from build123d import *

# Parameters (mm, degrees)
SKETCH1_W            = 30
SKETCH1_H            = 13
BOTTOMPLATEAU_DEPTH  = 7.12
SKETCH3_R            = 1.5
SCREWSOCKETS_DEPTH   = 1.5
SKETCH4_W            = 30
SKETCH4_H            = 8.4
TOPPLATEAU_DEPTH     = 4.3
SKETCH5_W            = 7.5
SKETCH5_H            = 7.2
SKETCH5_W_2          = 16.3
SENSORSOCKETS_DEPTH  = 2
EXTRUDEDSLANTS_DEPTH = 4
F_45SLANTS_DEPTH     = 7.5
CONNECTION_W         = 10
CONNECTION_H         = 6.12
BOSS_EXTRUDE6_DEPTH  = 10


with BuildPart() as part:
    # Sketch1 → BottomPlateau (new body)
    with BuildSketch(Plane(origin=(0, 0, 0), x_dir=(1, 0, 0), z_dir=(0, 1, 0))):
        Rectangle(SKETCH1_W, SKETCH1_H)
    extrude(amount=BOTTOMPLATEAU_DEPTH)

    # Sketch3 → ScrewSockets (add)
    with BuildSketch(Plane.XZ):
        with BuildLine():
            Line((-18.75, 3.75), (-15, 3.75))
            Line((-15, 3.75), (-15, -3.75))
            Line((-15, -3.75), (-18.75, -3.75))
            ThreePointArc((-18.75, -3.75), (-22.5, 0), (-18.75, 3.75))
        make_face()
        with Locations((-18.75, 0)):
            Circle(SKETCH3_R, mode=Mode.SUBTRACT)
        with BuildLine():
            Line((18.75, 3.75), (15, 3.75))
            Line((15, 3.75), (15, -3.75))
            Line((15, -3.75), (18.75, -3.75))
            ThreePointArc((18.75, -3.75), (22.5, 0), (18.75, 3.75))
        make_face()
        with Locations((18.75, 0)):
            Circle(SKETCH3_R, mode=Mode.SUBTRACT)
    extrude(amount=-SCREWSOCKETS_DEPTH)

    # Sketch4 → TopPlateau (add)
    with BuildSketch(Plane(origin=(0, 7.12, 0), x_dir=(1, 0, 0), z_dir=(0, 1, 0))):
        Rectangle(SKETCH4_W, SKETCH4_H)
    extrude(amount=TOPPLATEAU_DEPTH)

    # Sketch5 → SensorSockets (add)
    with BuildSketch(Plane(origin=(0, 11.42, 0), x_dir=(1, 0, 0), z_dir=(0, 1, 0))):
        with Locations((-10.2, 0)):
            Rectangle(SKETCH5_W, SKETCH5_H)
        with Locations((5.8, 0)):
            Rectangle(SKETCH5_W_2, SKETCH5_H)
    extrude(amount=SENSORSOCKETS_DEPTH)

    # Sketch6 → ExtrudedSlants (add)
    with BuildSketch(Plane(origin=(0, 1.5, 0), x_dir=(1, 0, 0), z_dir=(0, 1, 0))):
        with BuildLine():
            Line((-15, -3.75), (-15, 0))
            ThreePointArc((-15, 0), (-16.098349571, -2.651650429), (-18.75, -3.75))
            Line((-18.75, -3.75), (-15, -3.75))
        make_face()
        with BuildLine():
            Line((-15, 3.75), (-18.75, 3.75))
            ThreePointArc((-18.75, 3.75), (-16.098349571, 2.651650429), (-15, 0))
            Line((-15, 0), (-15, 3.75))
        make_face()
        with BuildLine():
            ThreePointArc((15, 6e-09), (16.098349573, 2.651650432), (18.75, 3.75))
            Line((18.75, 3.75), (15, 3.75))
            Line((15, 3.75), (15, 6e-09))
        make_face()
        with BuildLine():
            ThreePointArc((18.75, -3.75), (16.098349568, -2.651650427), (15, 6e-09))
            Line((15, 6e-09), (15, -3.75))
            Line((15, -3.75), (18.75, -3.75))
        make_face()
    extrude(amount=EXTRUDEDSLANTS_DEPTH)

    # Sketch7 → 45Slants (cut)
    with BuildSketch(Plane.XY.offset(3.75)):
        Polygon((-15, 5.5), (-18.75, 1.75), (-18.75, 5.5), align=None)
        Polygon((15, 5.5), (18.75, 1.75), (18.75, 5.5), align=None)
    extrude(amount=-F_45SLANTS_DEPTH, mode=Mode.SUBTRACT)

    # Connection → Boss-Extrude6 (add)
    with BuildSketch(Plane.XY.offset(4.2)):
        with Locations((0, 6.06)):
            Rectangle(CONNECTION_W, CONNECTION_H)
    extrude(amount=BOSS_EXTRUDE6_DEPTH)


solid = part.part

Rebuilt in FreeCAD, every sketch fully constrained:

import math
import FreeCAD as App
import Part
import Sketcher
from FreeCAD import Vector
Q = App.Units.Quantity


def add_polygon(sketch, points):
    """Adds a closed chain of lines whose ends are joined by coincident constraints."""
    first, n = sketch.GeometryCount, len(points)
    for a, b in zip(points, points[1:] + points[:1]):
        sketch.addGeometry(Part.LineSegment(App.Vector(*a, 0), App.Vector(*b, 0)), False)
    for i in range(n):
        sketch.addConstraint(Sketcher.Constraint("Coincident", first + i, 2, first + (i + 1) % n, 1))

doc = App.newDocument("Part")
params = doc.addObject("Spreadsheet::Sheet", "Params")
for row, (alias, value) in enumerate([
    ("sketch1_width", "30 mm"),
    ("sketch1_height", "13 mm"),
    ("pad1_length", "7.12 mm"),
    ("sketch2_diameter", "3 mm"),
    ("sketch2_radius", "3.75 mm"),
    ("sketch2_width", "3.75 mm"),
    ("pad2_length", "1.5 mm"),
    ("sketch3_width", "30 mm"),
    ("sketch3_height", "8.4 mm"),
    ("pad3_length", "4.3 mm"),
    ("sketch4_width", "7.5 mm"),
    ("sketch4_width2", "16.3 mm"),
    ("sketch4_height", "7.2 mm"),
    ("pad4_length", "2 mm"),
    ("sketch5_radius", "3.75 mm"),
    ("pad5_length", "4 mm"),
    ("sketch6_width", "3.75 mm"),
    ("pocket1_length", "7.5 mm"),
    ("sketch7_width", "10 mm"),
    ("sketch7_height", "6.12 mm"),
    ("pad6_length", "10 mm"),
], start=1):
    params.set(f"A{row}", alias)
    params.set(f"B{row}", "=" + value)
    params.setAlias(f"B{row}", alias)

body = doc.addObject("PartDesign::Body", "Body")

sketch1 = body.newObject("Sketcher::SketchObject", "Sketch")
sketch1.AttachmentSupport = (doc.getObject("XZ_Plane"), [""])
sketch1.MapMode = "FlatFace"
add_polygon(sketch1, [(-15, -6), (-15, 6), (15, 6), (15, -6)])
sketch1.addConstraint([
    Sketcher.Constraint("Vertical", 0),
    Sketcher.Constraint("Horizontal", 1),
    Sketcher.Constraint("Vertical", 2),
    Sketcher.Constraint("Horizontal", 3),
    Sketcher.Constraint("Symmetric", 0, 2, 2, 2, -1, 1),
    Sketcher.Constraint("DistanceX", 1, 1, 1, 2, Q("30 mm")),
    Sketcher.Constraint("DistanceY", 0, 1, 0, 2, Q("13 mm")),
])
sketch1.setExpression("Constraints[9]", "Params.sketch1_width")
sketch1.setExpression("Constraints[10]", "Params.sketch1_height")
pad1 = body.newObject("PartDesign::Pad", "Pad")
pad1.Profile = sketch1
pad1.setExpression("Length", "Params.pad1_length")
pad1.Reversed = True

sketch2 = body.newObject("Sketcher::SketchObject", "Sketch001")
sketch2.AttachmentSupport = (doc.getObject("XZ_Plane"), [""])
sketch2.MapMode = "FlatFace"
sketch2.addGeometry([
    Part.LineSegment(Vector(-15, 3.8, 0), Vector(-18.8, 3.8, 0)),
    Part.ArcOfCircle(Part.Circle(Vector(-18.8, 0, 0), Vector(0, 0, 1), 3.8), math.radians(90), math.radians(270)),
    Part.LineSegment(Vector(-18.8, -3.8, 0), Vector(-15, -3.8, 0)),
    Part.LineSegment(Vector(-15, -3.8, 0), Vector(-15, 3.8, 0)),
    Part.Circle(Vector(-18.8, 0, 0), Vector(0, 0, 1), 1.5),
    Part.LineSegment(Vector(18.8, 3.8, 0), Vector(15, 3.8, 0)),
    Part.LineSegment(Vector(15, 3.8, 0), Vector(15, -3.8, 0)),
    Part.LineSegment(Vector(15, -3.8, 0), Vector(18.8, -3.8, 0)),
    Part.ArcOfCircle(Part.Circle(Vector(18.8, 0, 0), Vector(0, 0, 1), 3.8), math.radians(-90), math.radians(90)),
    Part.Circle(Vector(18.8, 0, 0), Vector(0, 0, 1), 1.5),
], False)
sketch2.addConstraint([
    Sketcher.Constraint("Tangent", 0, 2, 1, 1),
    Sketcher.Constraint("Tangent", 1, 2, 2, 1),
    Sketcher.Constraint("Coincident", 2, 2, 3, 1),
    Sketcher.Constraint("Coincident", 3, 2, 0, 1),
    Sketcher.Constraint("Coincident", 5, 2, 6, 1),
    Sketcher.Constraint("Coincident", 6, 2, 7, 1),
    Sketcher.Constraint("Tangent", 7, 2, 8, 1),
    Sketcher.Constraint("Tangent", 8, 2, 5, 1),
    Sketcher.Constraint("Horizontal", 0),
    Sketcher.Constraint("Horizontal", 2),
    Sketcher.Constraint("Vertical", 3),
    Sketcher.Constraint("Horizontal", 5),
    Sketcher.Constraint("Vertical", 6),
    Sketcher.Constraint("Horizontal", 7),
    Sketcher.Constraint("Coincident", 4, 3, 1, 3),
    Sketcher.Constraint("Coincident", 9, 3, 8, 3),
    Sketcher.Constraint("Equal", 1, 8),
    Sketcher.Constraint("Equal", 4, 9),
    Sketcher.Constraint("Symmetric", 1, 3, 8, 3, -1, 1),
    Sketcher.Constraint("Symmetric", 3, 2, 5, 2, -2),
    Sketcher.Constraint("Diameter", 4, Q("3 mm")),
    Sketcher.Constraint("Radius", 1, Q("3.75 mm")),
    Sketcher.Constraint("DistanceX", 2, 2, -1, 1, Q("15 mm")),
    Sketcher.Constraint("DistanceX", 0, 2, 0, 1, Q("3.75 mm")),
])
sketch2.setExpression("Constraints[20]", "Params.sketch2_diameter")
sketch2.setExpression("Constraints[21]", "Params.sketch2_radius")
sketch2.setExpression("Constraints[23]", "Params.sketch2_width")
pad2 = body.newObject("PartDesign::Pad", "Pad001")
pad2.Profile = sketch2
pad2.setExpression("Length", "Params.pad2_length")
pad2.Reversed = True

sketch3 = body.newObject("Sketcher::SketchObject", "Sketch002")
sketch3.AttachmentSupport = (doc.getObject("XZ_Plane"), [""])
sketch3.MapMode = "FlatFace"
sketch3.AttachmentOffset = App.Placement(Vector(0, 0, -7.12), App.Rotation())
add_polygon(sketch3, [(-15, -4), (-15, 4), (15, 4), (15, -4)])
sketch3.addConstraint([
    Sketcher.Constraint("Vertical", 0),
    Sketcher.Constraint("Horizontal", 1),
    Sketcher.Constraint("Vertical", 2),
    Sketcher.Constraint("Horizontal", 3),
    Sketcher.Constraint("Symmetric", 0, 2, 2, 2, -1, 1),
    Sketcher.Constraint("DistanceX", 1, 1, 1, 2, Q("30 mm")),
    Sketcher.Constraint("DistanceY", 0, 1, 0, 2, Q("8.4 mm")),
])
sketch3.setExpression("Constraints[9]", "Params.sketch3_width")
sketch3.setExpression("Constraints[10]", "Params.sketch3_height")
pad3 = body.newObject("PartDesign::Pad", "Pad002")
pad3.Profile = sketch3
pad3.setExpression("Length", "Params.pad3_length")
pad3.Reversed = True

sketch4 = body.newObject("Sketcher::SketchObject", "Sketch003")
sketch4.AttachmentSupport = (doc.getObject("XZ_Plane"), [""])
sketch4.MapMode = "FlatFace"
sketch4.AttachmentOffset = App.Placement(Vector(0, 0, -11.42), App.Rotation())
add_polygon(sketch4, [(-14, -4), (-14, 4), (-6, 4), (-6, -4)])
add_polygon(sketch4, [(-2, -4), (-2, 4), (14, 4), (14, -4)])
sketch4.addConstraint([
    Sketcher.Constraint("Vertical", 0),
    Sketcher.Constraint("Horizontal", 1),
    Sketcher.Constraint("Vertical", 2),
    Sketcher.Constraint("Horizontal", 3),
    Sketcher.Constraint("Vertical", 4),
    Sketcher.Constraint("Horizontal", 5),
    Sketcher.Constraint("Vertical", 6),
    Sketcher.Constraint("Horizontal", 7),
    Sketcher.Constraint("Symmetric", 3, 2, 5, 2, -1, 1),
    Sketcher.Constraint("Horizontal", 1, 2, 4, 2),
    Sketcher.Constraint("Horizontal", 3, 2, 6, 2),
    Sketcher.Constraint("DistanceX", 1, 1, 1, 2, Q("7.5 mm")),
    Sketcher.Constraint("DistanceX", 5, 1, 5, 2, Q("16.3 mm")),
    Sketcher.Constraint("DistanceY", 0, 1, 0, 2, Q("7.2 mm")),
    Sketcher.Constraint("DistanceX", 1, 2, 4, 2, Q("4.1 mm")),
])
sketch4.setExpression("Constraints[19]", "Params.sketch4_width")
sketch4.setExpression("Constraints[20]", "Params.sketch4_width2")
sketch4.setExpression("Constraints[21]", "Params.sketch4_height")
pad4 = body.newObject("PartDesign::Pad", "Pad003")
pad4.Profile = sketch4
pad4.setExpression("Length", "Params.pad4_length")
pad4.Reversed = True

sketch5 = body.newObject("Sketcher::SketchObject", "Sketch004")
sketch5.AttachmentSupport = (doc.getObject("XZ_Plane"), [""])
sketch5.MapMode = "FlatFace"
sketch5.AttachmentOffset = App.Placement(Vector(0, 0, -1.5), App.Rotation())
sketch5.addGeometry([
    Part.LineSegment(Vector(-15, 3.8, 0), Vector(-15, 0, 0)),
    Part.ArcOfCircle(Part.Circle(Vector(-18.8, 0, 0), Vector(0, 0, 1), 3.8), math.radians(0), math.radians(90)),
    Part.LineSegment(Vector(-18.8, 3.8, 0), Vector(-15, 3.8, 0)),
    Part.LineSegment(Vector(-15, -3.8, 0), Vector(-18.8, -3.8, 0)),
    Part.ArcOfCircle(Part.Circle(Vector(-18.8, 0, 0), Vector(0, 0, 1), 3.8), math.radians(-90), math.radians(0)),
    Part.LineSegment(Vector(-15, 0, 0), Vector(-15, -3.8, 0)),
    Part.ArcOfCircle(Part.Circle(Vector(18.8, 0, 0), Vector(0, 0, 1), 3.8), math.radians(-180), math.radians(-90)),
    Part.LineSegment(Vector(18.8, -3.8, 0), Vector(15, -3.8, 0)),
    Part.LineSegment(Vector(15, -3.8, 0), Vector(15, 0, 0)),
    Part.ArcOfCircle(Part.Circle(Vector(18.8, 0, 0), Vector(0, 0, 1), 3.8), math.radians(90), math.radians(180)),
    Part.LineSegment(Vector(15, 0, 0), Vector(15, 3.8, 0)),
    Part.LineSegment(Vector(15, 3.8, 0), Vector(18.8, 3.8, 0)),
], False)
sketch5.addConstraint([
    Sketcher.Constraint("Tangent", 0, 2, 1, 1),
    Sketcher.Constraint("Tangent", 1, 2, 2, 1),
    Sketcher.Constraint("Coincident", 2, 2, 0, 1),
    Sketcher.Constraint("Tangent", 3, 2, 4, 1),
    Sketcher.Constraint("Tangent", 4, 2, 5, 1),
    Sketcher.Constraint("Coincident", 5, 2, 3, 1),
    Sketcher.Constraint("Tangent", 6, 2, 7, 1),
    Sketcher.Constraint("Coincident", 7, 2, 8, 1),
    Sketcher.Constraint("Tangent", 8, 2, 6, 1),
    Sketcher.Constraint("Tangent", 9, 2, 10, 1),
    Sketcher.Constraint("Coincident", 10, 2, 11, 1),
    Sketcher.Constraint("Tangent", 11, 2, 9, 1),
    Sketcher.Constraint("Vertical", 0),
    Sketcher.Constraint("Horizontal", 2),
    Sketcher.Constraint("Horizontal", 3),
    Sketcher.Constraint("Vertical", 5),
    Sketcher.Constraint("Horizontal", 7),
    Sketcher.Constraint("Vertical", 8),
    Sketcher.Constraint("Vertical", 10),
    Sketcher.Constraint("Horizontal", 11),
    Sketcher.Constraint("Coincident", 4, 3, 1, 3),
    Sketcher.Constraint("Coincident", 9, 3, 6, 3),
    Sketcher.Constraint("Equal", 1, 4),
    Sketcher.Constraint("Equal", 4, 6),
    Sketcher.Constraint("Equal", 6, 9),
    Sketcher.Constraint("Symmetric", 1, 3, 6, 3, -1, 1),
    Sketcher.Constraint("PointOnObject", 1, 3, -1),
    Sketcher.Constraint("Radius", 1, Q("3.75 mm")),
    Sketcher.Constraint("DistanceX", 0, 2, -1, 1, Q("15 mm")),
])
sketch5.setExpression("Constraints[27]", "Params.sketch5_radius")
pad5 = body.newObject("PartDesign::Pad", "Pad004")
pad5.Profile = sketch5
pad5.setExpression("Length", "Params.pad5_length")
pad5.Reversed = True

sketch6 = body.newObject("Sketcher::SketchObject", "Sketch005")
sketch6.AttachmentSupport = (doc.getObject("XY_Plane"), [""])
sketch6.MapMode = "FlatFace"
sketch6.AttachmentOffset = App.Placement(Vector(0, 0, 3.75), App.Rotation())
add_polygon(sketch6, [(-18.8, 1.8), (-15, 5.5), (-18.8, 5.5)])
add_polygon(sketch6, [(15, 5.5), (18.8, 1.8), (18.8, 5.5)])
sketch6.addConstraint([
    Sketcher.Constraint("Horizontal", 1),
    Sketcher.Constraint("Vertical", 2),
    Sketcher.Constraint("Vertical", 4),
    Sketcher.Constraint("Horizontal", 5),
    Sketcher.Constraint("Symmetric", 2, 2, 3, 2, -2),
    Sketcher.Constraint("Symmetric", 0, 2, 5, 2, -2),
    Sketcher.Constraint("Perpendicular", 0, 3),
    Sketcher.Constraint("DistanceX", 0, 2, -1, 1, Q("15 mm")),
    Sketcher.Constraint("DistanceX", 1, 2, 1, 1, Q("3.75 mm")),
    Sketcher.Constraint("DistanceY", -1, 1, 0, 2, Q("5.5 mm")),
])
sketch6.setExpression("Constraints[14]", "Params.sketch6_width")
pocket1 = body.newObject("PartDesign::Pocket", "Pocket")
pocket1.Profile = sketch6
pocket1.setExpression("Length", "Params.pocket1_length")

sketch7 = body.newObject("Sketcher::SketchObject", "Sketch006")
sketch7.AttachmentSupport = (doc.getObject("XY_Plane"), [""])
sketch7.MapMode = "FlatFace"
sketch7.AttachmentOffset = App.Placement(Vector(0, 0, 4.2), App.Rotation())
add_polygon(sketch7, [(-5, 9), (-5, 3), (5, 3), (5, 9)])
sketch7.addConstraint([
    Sketcher.Constraint("Vertical", 0),
    Sketcher.Constraint("Horizontal", 1),
    Sketcher.Constraint("Vertical", 2),
    Sketcher.Constraint("Horizontal", 3),
    Sketcher.Constraint("DistanceX", 1, 1, 1, 2, Q("10 mm")),
    Sketcher.Constraint("DistanceX", 0, 2, -1, 1, Q("5 mm")),
    Sketcher.Constraint("DistanceY", -1, 1, 0, 2, Q("3 mm")),
    Sketcher.Constraint("DistanceY", 0, 2, 0, 1, Q("6.12 mm")),
])
sketch7.setExpression("Constraints[8]", "Params.sketch7_width")
sketch7.setExpression("Constraints[11]", "Params.sketch7_height")
pad6 = body.newObject("PartDesign::Pad", "Pad005")
pad6.Profile = sketch7
pad6.setExpression("Length", "Params.pad6_length")

doc.recompute()
